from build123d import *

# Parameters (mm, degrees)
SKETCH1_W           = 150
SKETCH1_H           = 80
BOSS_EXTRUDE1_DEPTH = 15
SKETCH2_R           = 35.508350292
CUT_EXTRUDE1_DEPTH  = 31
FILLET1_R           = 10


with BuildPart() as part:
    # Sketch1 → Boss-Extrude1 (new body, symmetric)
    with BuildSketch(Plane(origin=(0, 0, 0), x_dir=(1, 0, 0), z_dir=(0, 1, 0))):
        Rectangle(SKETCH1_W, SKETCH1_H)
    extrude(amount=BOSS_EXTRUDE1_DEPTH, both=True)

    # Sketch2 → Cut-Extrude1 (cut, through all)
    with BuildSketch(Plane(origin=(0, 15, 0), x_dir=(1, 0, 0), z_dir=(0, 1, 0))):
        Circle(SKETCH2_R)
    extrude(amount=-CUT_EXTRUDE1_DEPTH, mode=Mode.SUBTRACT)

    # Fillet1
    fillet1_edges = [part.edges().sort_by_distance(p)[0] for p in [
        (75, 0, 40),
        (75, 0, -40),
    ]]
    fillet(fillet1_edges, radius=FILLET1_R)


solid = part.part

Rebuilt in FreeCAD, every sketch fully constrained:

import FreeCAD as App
import Part
import Sketcher

V = App.Vector
Q = App.Units.Quantity


def edges_at(feature, points):
    """Names of the edges that pass closest to the given points."""
    edges = feature.Shape.Edges
    near = lambda p: min(range(len(edges)), key=lambda i: edges[i].distToShape(Part.Vertex(*p))[0])
    return sorted({f"Edge{near(p) + 1}" for p in points})

doc = App.newDocument("Part")
body = doc.addObject("PartDesign::Body", "Body")

# Sketch on XZ plane
sketch1 = doc.addObject("Sketcher::SketchObject", "Sketch")
body.addObject(sketch1)
sketch1.AttachmentSupport = (doc.XZ_Plane, [""])
sketch1.MapMode = "FlatFace"
sketch1.addGeometry(Part.LineSegment(V(-75, -40, 0), V(-75, 40, 0)), False)
sketch1.addGeometry(Part.LineSegment(V(-75, 40, 0), V(75, 40, 0)), False)
sketch1.addGeometry(Part.LineSegment(V(75, 40, 0), V(75, -40, 0)), False)
sketch1.addGeometry(Part.LineSegment(V(75, -40, 0), V(-75, -40, 0)), False)
sketch1.addConstraint(Sketcher.Constraint("Coincident", 0, 2, 1, 1))
sketch1.addConstraint(Sketcher.Constraint("Coincident", 1, 2, 2, 1))
sketch1.addConstraint(Sketcher.Constraint("Coincident", 2, 2, 3, 1))
sketch1.addConstraint(Sketcher.Constraint("Coincident", 3, 2, 0, 1))
sketch1.addConstraint(Sketcher.Constraint("Vertical", 0))
sketch1.addConstraint(Sketcher.Constraint("Horizontal", 1))
sketch1.addConstraint(Sketcher.Constraint("Vertical", 2))
sketch1.addConstraint(Sketcher.Constraint("Horizontal", 3))
sketch1.addConstraint(Sketcher.Constraint("Symmetric", 0, 2, 2, 2, -1, 1))
sketch1.addConstraint(Sketcher.Constraint("DistanceX", 1, 1, 1, 2, Q("150 mm")))
sketch1.addConstraint(Sketcher.Constraint("DistanceY", 0, 1, 0, 2, Q("80 mm")))
pad1 = doc.addObject("PartDesign::Pad", "Pad")
body.addObject(pad1)
pad1.Profile = sketch1
pad1.Length = 30
pad1.Midplane = True

# Sketch on XZ plane
sketch2 = doc.addObject("Sketcher::SketchObject", "Sketch001")
body.addObject(sketch2)
sketch2.AttachmentSupport = (doc.XZ_Plane, [""])
sketch2.MapMode = "FlatFace"
sketch2.AttachmentOffset = App.Placement(V(0, 0, -15), App.Rotation())
sketch2.addGeometry(Part.Circle(V(0, 0, 0), V(0, 0, 1), 36), False)
sketch2.addConstraint(Sketcher.Constraint("Coincident", 0, 3, -1, 1))
sketch2.addConstraint(Sketcher.Constraint("Diameter", 0, Q("71.016701 mm")))
pocket1 = doc.addObject("PartDesign::Pocket", "Pocket")
body.addObject(pocket1)
pocket1.Profile = sketch2
pocket1.Type = "ThroughAll"
pocket1.Reversed = True
doc.recompute()

fillet = doc.addObject("PartDesign::Fillet", "Fillet")
body.addObject(fillet)
fillet.Base = (pocket1, edges_at(pocket1, [(75, 0, 40), (75, 0, -40)]))
fillet.Radius = 10

doc.recompute()
